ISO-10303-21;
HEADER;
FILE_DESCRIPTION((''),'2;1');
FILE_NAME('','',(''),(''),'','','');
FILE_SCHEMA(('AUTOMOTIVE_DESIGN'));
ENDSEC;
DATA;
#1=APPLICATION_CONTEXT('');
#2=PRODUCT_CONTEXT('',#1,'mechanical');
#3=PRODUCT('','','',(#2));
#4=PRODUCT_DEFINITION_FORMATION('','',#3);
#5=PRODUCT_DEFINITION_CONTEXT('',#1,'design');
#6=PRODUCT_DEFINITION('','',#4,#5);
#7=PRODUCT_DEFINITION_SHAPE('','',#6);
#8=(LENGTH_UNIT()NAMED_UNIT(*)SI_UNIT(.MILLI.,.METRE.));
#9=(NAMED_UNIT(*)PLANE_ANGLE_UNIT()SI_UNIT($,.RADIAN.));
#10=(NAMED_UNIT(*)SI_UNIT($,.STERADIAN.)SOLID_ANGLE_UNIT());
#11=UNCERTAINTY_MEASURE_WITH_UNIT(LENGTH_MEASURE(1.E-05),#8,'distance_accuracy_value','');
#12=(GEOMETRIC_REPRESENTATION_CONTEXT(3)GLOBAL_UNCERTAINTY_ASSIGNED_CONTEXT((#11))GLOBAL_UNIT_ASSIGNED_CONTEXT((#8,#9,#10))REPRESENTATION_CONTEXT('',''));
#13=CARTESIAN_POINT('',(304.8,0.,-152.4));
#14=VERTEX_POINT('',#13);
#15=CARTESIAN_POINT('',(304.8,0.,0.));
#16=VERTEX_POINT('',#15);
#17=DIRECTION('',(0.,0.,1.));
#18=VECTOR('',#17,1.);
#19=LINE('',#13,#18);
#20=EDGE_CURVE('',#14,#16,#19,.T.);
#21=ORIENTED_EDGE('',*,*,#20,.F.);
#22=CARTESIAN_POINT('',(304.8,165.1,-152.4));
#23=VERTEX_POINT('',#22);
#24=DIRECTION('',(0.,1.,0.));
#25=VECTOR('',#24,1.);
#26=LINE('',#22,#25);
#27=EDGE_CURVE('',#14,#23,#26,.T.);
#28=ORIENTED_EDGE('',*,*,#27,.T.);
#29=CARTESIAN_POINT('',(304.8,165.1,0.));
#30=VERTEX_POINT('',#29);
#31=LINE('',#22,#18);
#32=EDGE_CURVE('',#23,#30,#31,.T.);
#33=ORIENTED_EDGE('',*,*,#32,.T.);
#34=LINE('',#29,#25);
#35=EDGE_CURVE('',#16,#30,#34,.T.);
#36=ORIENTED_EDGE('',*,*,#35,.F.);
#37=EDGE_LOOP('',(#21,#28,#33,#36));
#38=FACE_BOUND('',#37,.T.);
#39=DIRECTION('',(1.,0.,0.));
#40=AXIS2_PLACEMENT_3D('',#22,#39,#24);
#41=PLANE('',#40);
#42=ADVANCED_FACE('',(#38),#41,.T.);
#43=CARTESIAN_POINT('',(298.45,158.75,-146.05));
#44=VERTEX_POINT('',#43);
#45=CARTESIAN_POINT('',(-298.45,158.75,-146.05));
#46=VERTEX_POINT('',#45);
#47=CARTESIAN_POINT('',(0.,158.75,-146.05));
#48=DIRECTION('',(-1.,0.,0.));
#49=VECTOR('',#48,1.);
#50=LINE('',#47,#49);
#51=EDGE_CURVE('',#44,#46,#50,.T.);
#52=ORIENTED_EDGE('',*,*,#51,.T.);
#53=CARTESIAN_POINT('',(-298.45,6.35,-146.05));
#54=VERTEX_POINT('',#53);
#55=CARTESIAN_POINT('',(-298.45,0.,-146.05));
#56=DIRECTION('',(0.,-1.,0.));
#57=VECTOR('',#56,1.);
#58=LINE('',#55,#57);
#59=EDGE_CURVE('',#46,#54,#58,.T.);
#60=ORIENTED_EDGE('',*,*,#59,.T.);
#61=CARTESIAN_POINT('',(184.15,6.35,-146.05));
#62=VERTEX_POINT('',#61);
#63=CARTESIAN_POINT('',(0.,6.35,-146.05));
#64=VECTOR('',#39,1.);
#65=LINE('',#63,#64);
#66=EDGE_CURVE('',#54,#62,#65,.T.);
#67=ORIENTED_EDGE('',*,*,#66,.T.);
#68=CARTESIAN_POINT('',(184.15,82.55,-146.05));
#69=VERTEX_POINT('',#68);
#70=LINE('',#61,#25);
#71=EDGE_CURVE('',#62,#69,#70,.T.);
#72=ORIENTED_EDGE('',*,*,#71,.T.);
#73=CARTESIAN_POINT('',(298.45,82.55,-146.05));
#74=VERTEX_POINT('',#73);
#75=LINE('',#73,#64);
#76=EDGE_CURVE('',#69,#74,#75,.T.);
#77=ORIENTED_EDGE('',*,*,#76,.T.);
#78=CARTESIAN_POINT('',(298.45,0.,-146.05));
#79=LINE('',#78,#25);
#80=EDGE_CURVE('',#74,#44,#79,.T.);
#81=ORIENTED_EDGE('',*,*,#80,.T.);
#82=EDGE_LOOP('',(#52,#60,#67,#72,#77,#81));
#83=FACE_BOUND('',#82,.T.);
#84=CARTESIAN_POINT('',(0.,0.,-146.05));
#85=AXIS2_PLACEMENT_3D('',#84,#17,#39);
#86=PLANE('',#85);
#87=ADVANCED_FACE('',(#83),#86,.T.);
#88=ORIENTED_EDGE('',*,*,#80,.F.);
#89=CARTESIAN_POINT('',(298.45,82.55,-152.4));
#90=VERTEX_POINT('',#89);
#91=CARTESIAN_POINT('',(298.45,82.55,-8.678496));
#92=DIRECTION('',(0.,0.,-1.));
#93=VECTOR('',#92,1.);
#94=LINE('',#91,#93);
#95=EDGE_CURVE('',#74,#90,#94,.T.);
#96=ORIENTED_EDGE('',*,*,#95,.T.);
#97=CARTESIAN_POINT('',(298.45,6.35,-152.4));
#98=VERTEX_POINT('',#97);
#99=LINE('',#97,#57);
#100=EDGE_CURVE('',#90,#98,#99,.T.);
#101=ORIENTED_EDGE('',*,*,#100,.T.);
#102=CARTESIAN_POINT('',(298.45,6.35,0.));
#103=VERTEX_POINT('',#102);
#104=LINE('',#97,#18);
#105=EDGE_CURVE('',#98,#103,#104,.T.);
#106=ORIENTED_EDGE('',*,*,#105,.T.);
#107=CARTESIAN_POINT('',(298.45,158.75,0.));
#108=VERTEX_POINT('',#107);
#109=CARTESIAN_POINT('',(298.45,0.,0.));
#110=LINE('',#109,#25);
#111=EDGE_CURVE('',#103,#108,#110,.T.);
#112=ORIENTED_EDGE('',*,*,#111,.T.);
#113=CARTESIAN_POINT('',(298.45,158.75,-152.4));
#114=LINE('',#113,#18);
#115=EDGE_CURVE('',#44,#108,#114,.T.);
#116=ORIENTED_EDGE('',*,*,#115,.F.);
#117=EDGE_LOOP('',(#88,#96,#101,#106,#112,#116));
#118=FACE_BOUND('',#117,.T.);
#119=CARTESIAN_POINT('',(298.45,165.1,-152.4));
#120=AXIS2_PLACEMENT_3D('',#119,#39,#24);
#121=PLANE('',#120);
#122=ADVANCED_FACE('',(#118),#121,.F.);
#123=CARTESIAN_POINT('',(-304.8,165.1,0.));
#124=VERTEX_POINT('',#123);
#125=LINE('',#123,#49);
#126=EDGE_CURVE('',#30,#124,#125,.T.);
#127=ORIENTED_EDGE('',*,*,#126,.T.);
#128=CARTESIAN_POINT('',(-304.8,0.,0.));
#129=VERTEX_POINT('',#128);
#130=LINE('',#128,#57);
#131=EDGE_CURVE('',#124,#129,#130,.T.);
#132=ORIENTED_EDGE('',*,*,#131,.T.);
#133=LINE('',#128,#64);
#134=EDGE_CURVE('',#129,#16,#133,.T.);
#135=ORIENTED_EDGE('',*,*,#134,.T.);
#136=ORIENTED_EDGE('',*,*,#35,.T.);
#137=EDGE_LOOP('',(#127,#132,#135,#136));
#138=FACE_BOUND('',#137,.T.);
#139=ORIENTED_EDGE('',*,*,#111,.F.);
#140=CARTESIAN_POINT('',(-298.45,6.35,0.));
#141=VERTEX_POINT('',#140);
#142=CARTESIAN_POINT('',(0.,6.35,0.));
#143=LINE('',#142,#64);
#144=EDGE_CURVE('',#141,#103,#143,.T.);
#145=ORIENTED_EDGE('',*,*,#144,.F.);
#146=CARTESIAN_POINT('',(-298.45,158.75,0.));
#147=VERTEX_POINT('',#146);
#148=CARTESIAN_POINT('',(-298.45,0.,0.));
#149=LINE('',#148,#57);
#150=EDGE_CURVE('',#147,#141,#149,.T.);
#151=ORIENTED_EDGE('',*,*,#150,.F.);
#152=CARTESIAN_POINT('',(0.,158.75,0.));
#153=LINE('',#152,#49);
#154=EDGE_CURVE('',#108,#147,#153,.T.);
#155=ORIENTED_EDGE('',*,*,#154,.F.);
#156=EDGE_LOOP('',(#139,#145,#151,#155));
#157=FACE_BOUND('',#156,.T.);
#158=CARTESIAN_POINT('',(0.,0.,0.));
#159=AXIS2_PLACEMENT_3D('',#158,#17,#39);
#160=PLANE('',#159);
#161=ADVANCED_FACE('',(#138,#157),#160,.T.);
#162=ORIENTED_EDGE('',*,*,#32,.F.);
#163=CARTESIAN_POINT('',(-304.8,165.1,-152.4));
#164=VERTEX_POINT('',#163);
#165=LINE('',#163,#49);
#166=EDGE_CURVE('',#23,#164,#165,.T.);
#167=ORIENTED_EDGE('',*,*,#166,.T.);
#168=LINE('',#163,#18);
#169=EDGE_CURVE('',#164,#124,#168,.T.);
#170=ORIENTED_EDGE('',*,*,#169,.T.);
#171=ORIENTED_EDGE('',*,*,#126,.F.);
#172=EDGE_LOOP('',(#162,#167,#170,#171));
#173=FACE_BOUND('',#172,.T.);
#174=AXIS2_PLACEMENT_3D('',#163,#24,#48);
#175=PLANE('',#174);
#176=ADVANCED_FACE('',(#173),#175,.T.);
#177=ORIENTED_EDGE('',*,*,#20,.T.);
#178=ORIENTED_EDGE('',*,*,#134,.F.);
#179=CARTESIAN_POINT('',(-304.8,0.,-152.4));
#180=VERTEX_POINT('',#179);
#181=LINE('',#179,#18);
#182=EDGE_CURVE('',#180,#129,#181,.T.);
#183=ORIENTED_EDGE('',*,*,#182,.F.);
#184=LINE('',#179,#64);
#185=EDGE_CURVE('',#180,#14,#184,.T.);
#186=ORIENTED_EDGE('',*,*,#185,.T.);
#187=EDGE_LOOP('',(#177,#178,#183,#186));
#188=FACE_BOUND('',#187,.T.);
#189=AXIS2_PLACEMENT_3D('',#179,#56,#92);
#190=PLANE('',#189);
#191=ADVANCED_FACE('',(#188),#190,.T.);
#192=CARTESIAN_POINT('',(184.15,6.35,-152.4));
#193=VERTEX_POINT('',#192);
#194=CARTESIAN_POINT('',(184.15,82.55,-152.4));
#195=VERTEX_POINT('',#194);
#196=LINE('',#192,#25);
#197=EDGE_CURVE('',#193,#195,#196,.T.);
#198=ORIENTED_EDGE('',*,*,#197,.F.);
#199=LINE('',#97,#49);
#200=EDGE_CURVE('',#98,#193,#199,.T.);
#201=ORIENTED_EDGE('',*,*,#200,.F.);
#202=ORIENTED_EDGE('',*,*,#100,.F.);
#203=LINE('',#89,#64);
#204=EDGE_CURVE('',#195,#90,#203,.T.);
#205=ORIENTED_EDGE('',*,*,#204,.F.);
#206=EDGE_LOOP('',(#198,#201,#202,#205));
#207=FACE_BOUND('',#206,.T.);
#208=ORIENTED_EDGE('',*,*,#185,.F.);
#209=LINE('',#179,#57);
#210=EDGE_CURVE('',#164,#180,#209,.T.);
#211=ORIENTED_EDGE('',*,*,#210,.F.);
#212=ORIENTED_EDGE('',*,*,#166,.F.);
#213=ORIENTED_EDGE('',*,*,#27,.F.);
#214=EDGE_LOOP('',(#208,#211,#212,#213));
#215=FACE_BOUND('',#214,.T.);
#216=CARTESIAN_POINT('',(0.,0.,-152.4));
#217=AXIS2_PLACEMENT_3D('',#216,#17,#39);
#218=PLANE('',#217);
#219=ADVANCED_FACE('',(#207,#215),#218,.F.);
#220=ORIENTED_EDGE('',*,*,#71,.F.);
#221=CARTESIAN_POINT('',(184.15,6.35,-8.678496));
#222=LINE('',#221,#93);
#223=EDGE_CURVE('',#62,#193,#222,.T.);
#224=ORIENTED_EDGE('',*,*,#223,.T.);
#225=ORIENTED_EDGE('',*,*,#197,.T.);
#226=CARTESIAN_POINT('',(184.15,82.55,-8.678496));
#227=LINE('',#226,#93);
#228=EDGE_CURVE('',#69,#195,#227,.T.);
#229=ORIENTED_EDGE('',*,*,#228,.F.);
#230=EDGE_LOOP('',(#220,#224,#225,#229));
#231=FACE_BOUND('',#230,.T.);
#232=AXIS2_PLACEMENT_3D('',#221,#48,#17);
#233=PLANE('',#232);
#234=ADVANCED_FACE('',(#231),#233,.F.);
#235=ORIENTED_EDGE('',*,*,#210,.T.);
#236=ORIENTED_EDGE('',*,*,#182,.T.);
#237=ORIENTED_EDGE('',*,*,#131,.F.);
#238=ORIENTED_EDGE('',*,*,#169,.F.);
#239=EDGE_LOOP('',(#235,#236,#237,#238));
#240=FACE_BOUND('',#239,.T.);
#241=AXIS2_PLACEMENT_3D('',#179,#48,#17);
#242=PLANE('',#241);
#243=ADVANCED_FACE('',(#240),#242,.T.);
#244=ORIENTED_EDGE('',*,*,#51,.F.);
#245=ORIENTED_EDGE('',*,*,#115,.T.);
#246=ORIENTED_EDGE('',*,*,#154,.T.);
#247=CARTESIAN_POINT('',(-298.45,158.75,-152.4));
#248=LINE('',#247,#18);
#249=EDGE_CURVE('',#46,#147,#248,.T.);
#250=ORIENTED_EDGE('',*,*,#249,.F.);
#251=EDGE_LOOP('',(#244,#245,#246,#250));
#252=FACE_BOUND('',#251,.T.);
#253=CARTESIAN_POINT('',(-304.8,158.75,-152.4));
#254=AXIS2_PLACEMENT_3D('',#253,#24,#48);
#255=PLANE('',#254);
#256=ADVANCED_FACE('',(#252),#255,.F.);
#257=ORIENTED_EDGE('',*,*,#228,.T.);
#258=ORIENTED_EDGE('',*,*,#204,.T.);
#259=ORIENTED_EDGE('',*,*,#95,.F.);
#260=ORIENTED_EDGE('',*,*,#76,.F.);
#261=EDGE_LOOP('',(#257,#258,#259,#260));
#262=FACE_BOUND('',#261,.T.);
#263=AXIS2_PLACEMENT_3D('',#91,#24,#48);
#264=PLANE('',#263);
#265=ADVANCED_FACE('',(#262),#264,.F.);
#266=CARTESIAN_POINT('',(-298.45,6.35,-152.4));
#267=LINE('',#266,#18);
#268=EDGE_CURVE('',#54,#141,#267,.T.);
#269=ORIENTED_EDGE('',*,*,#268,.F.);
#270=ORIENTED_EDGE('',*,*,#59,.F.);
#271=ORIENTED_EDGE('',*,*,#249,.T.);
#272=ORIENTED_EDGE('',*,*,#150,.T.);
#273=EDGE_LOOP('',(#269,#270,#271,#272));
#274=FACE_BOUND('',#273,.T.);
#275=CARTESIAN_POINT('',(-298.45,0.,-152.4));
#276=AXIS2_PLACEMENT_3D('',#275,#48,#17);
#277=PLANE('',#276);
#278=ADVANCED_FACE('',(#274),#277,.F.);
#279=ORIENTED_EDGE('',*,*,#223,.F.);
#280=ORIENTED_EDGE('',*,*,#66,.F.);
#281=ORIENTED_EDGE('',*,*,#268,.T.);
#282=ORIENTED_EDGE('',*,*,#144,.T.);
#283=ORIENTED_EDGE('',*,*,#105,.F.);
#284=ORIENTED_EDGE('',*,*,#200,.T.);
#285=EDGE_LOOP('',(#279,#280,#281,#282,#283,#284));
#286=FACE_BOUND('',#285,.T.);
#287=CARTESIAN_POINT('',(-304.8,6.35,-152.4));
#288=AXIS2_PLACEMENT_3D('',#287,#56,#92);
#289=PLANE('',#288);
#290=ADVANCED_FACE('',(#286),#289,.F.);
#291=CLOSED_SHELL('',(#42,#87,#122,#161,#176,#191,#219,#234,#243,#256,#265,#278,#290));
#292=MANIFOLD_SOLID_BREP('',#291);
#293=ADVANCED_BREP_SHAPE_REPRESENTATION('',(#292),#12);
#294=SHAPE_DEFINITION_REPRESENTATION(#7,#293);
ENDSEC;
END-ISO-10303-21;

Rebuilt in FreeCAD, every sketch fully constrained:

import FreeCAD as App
import Part
import Sketcher

V = App.Vector
Q = App.Units.Quantity


def faces_at(feature, points):
    """Names of the faces that lie closest to the given points."""
    faces = feature.Shape.Faces
    near = lambda p: min(range(len(faces)), key=lambda i: faces[i].distToShape(Part.Vertex(*p))[0])
    return sorted({f"Face{near(p) + 1}" for p in points})

doc = App.newDocument("Part")
body = doc.addObject("PartDesign::Body", "Body")

# Sketch on XY plane
sketch1 = body.newObject("Sketcher::SketchObject", "Sketch")
sketch1.AttachmentSupport = (doc.getObject("XY_Plane"), [""])
sketch1.MapMode = "FlatFace"
sketch1.addGeometry(Part.LineSegment(V(-305, 165, 0), V(-305, 0, 0)), False)
sketch1.addGeometry(Part.LineSegment(V(-305, 0, 0), V(305, 0, 0)), False)
sketch1.addGeometry(Part.LineSegment(V(305, 0, 0), V(305, 165, 0)), False)
sketch1.addGeometry(Part.LineSegment(V(305, 165, 0), V(-305, 165, 0)), False)
sketch1.addConstraint(Sketcher.Constraint("Coincident", 0, 2, 1, 1))
sketch1.addConstraint(Sketcher.Constraint("Coincident", 1, 2, 2, 1))
sketch1.addConstraint(Sketcher.Constraint("Coincident", 2, 2, 3, 1))
sketch1.addConstraint(Sketcher.Constraint("Coincident", 3, 2, 0, 1))
sketch1.addConstraint(Sketcher.Constraint("Vertical", 0))
sketch1.addConstraint(Sketcher.Constraint("Horizontal", 1))
sketch1.addConstraint(Sketcher.Constraint("Vertical", 2))
sketch1.addConstraint(Sketcher.Constraint("Horizontal", 3))
sketch1.addConstraint(Sketcher.Constraint("Symmetric", 0, 2, 1, 2, -1, 1))
sketch1.addConstraint(Sketcher.Constraint("DistanceX", 1, 1, 1, 2, Q("24 in")))
sketch1.addConstraint(Sketcher.Constraint("DistanceY", 0, 2, 0, 1, Q("6.5 in")))
pad1 = body.newObject("PartDesign::Pad", "Pad")
pad1.Profile = sketch1
pad1.Length = Q("6 in")
pad1.Reversed = True
doc.recompute()

thickness = body.newObject("PartDesign::Thickness", "Thickness")
thickness.Base = (pad1, faces_at(pad1, [(0, 82.55, 0)]))
thickness.Value = Q("0.25 in")
thickness.Reversed = True
thickness.Join = "Intersection"

# Sketch on XY plane
sketch2 = body.newObject("Sketcher::SketchObject", "Sketch001")
sketch2.AttachmentSupport = (doc.getObject("XY_Plane"), [""])
sketch2.MapMode = "FlatFace"
sketch2.AttachmentOffset = App.Placement(V(0, 0, -6 * 25.4), App.Rotation())
sketch2.addGeometry(Part.LineSegment(V(298, 83, 0), V(298, 6, 0)), False)
sketch2.addGeometry(Part.LineSegment(V(298, 6, 0), V(184, 6, 0)), False)
sketch2.addGeometry(Part.LineSegment(V(184, 6, 0), V(184, 83, 0)), False)
sketch2.addGeometry(Part.LineSegment(V(184, 83, 0), V(298, 83, 0)), False)
sketch2.addConstraint(Sketcher.Constraint("Coincident", 0, 2, 1, 1))
sketch2.addConstraint(Sketcher.Constraint("Coincident", 1, 2, 2, 1))
sketch2.addConstraint(Sketcher.Constraint("Coincident", 2, 2, 3, 1))
sketch2.addConstraint(Sketcher.Constraint("Coincident", 3, 2, 0, 1))
sketch2.addConstraint(Sketcher.Constraint("Vertical", 0))
sketch2.addConstraint(Sketcher.Constraint("Horizontal", 1))
sketch2.addConstraint(Sketcher.Constraint("Vertical", 2))
sketch2.addConstraint(Sketcher.Constraint("Horizontal", 3))
sketch2.addConstraint(Sketcher.Constraint("DistanceY", 0, 2, 0, 1, Q("3 in")))
sketch2.addConstraint(Sketcher.Constraint("DistanceX", 1, 2, 1, 1, Q("4.5 in")))
sketch2.addConstraint(Sketcher.Constraint("DistanceX", -1, 1, 0, 2, Q("11.75 in")))
sketch2.addConstraint(Sketcher.Constraint("DistanceY", -1, 1, 0, 2, Q("0.25 in")))
pocket1 = body.newObject("PartDesign::Pocket", "Pocket")
pocket1.Profile = sketch2
pocket1.Length = Q("0.25 in")
pocket1.Reversed = True

doc.recompute()
